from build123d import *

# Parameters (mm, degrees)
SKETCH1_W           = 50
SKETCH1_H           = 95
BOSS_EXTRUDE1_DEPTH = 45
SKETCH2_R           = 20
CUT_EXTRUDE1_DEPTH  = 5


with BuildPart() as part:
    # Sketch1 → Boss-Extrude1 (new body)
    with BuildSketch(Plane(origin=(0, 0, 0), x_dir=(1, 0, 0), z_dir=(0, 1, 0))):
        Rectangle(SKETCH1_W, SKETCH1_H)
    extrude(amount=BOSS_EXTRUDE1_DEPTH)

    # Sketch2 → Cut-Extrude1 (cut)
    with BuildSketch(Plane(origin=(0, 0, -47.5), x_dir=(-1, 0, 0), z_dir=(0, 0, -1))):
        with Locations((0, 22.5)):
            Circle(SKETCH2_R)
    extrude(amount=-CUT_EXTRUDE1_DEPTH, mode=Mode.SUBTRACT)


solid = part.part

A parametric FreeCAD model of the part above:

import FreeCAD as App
import Part
import Sketcher

V = App.Vector
Q = App.Units.Quantity

doc = App.newDocument("Part")
params = doc.addObject("Spreadsheet::Sheet", "Params")
for row, (alias, value) in enumerate([
    ("sketch1_width", "50 mm"),
    ("sketch1_height", "95 mm"),
    ("pad1_length", "45 mm"),
    ("sketch2_diameter", "40 mm"),
    ("pocket1_length", "5 mm"),
], start=1):
    params.set(f"A{row}", alias)
    params.set(f"B{row}", "=" + value)
    params.setAlias(f"B{row}", alias)

body = doc.addObject("PartDesign::Body", "Body")

# Sketch on XZ plane
sketch1 = body.newObject("Sketcher::SketchObject", "Sketch")
sketch1.AttachmentSupport = (doc.getObject("XZ_Plane"), [""])
sketch1.MapMode = "FlatFace"
sketch1.addGeometry([
    Part.LineSegment(V(-25, -48, 0), V(-25, 48, 0)),
    Part.LineSegment(V(-25, 48, 0), V(25, 48, 0)),
    Part.LineSegment(V(25, 48, 0), V(25, -48, 0)),
    Part.LineSegment(V(25, -48, 0), V(-25, -48, 0)),
], False)
sketch1.addConstraint([
    Sketcher.Constraint("Coincident", 0, 2, 1, 1),
    Sketcher.Constraint("Coincident", 1, 2, 2, 1),
    Sketcher.Constraint("Coincident", 2, 2, 3, 1),
    Sketcher.Constraint("Coincident", 3, 2, 0, 1),
    Sketcher.Constraint("Vertical", 0),
    Sketcher.Constraint("Horizontal", 1),
    Sketcher.Constraint("Vertical", 2),
    Sketcher.Constraint("Horizontal", 3),
    Sketcher.Constraint("Symmetric", 0, 2, 2, 2, -1, 1),
    Sketcher.Constraint("DistanceX", 1, 1, 1, 2, Q("50 mm")),
    Sketcher.Constraint("DistanceY", 0, 1, 0, 2, Q("95 mm")),
])
sketch1.setExpression("Constraints[9]", "Params.sketch1_width")
sketch1.setExpression("Constraints[10]", "Params.sketch1_height")
pad1 = body.newObject("PartDesign::Pad", "Pad")
pad1.Profile = sketch1
pad1.setExpression("Length", "Params.pad1_length")
pad1.Reversed = True

# Sketch on XY plane
sketch2 = body.newObject("Sketcher::SketchObject", "Sketch001")
sketch2.AttachmentSupport = (doc.getObject("XY_Plane"), [""])
sketch2.MapMode = "FlatFace"
sketch2.AttachmentOffset = App.Placement(V(0, 0, -47.5), App.Rotation())
sketch2.addGeometry(Part.Circle(V(0, 22, 0), V(0, 0, 1), 20), False)
sketch2.addConstraint([
    Sketcher.Constraint("PointOnObject", 0, 3, -2),
    Sketcher.Constraint("Diameter", 0, Q("40 mm")),
    Sketcher.Constraint("DistanceY", -1, 1, 0, 3, Q("22.5 mm")),
])
sketch2.setExpression("Constraints[1]", "Params.sketch2_diameter")
pocket1 = body.newObject("PartDesign::Pocket", "Pocket")
pocket1.Profile = sketch2
pocket1.setExpression("Length", "Params.pocket1_length")
pocket1.Reversed = True

doc.recompute()
